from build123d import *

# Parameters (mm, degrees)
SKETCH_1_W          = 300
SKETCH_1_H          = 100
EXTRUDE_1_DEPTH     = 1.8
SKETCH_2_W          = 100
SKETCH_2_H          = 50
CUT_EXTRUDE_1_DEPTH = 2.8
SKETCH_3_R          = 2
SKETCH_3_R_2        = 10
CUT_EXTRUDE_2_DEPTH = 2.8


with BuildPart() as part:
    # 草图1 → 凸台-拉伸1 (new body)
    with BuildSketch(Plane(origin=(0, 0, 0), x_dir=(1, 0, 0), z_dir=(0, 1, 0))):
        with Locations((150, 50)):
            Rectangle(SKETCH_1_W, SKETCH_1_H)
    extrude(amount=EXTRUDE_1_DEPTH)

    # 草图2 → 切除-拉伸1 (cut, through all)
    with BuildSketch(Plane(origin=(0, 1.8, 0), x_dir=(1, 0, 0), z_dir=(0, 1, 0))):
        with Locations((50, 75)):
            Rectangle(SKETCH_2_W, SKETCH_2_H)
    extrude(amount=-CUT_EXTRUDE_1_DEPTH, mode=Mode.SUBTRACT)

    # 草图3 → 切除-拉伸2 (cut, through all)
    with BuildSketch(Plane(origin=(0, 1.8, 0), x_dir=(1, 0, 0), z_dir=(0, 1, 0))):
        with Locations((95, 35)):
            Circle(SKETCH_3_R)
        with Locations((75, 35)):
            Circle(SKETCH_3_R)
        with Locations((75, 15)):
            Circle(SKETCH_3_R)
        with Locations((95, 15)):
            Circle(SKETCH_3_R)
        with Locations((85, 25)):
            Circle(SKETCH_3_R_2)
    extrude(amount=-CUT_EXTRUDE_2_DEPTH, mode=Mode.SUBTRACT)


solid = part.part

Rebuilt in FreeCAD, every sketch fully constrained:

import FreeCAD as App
import Part
import Sketcher

V = App.Vector

doc = App.newDocument("Part")
params = doc.addObject("Spreadsheet::Sheet", "Params")
for row, (alias, value) in enumerate([
    ("sketch1_width", "300 mm"),
    ("sketch1_height", "100 mm"),
    ("pad1_length", "1.8 mm"),
    ("sketch2_width", "100 mm"),
    ("sketch2_height", "50 mm"),
    ("sketch3_diameter", "4 mm"),
    ("sketch3_diameter2", "20 mm"),
], start=1):
    params.set(f"A{row}", alias)
    params.set(f"B{row}", "=" + value)
    params.setAlias(f"B{row}", alias)

body = doc.addObject("PartDesign::Body", "Body")

# Sketch on XZ plane
sketch1 = doc.addObject("Sketcher::SketchObject", "Sketch")
body.addObject(sketch1)
sketch1.AttachmentSupport = (doc.XZ_Plane, [""])
sketch1.MapMode = "FlatFace"
sketch1.addGeometry([
    Part.LineSegment(V(0, -100, 0), V(0, 0, 0)),
    Part.LineSegment(V(0, 0, 0), V(300, 0, 0)),
    Part.LineSegment(V(300, 0, 0), V(300, -100, 0)),
    Part.LineSegment(V(300, -100, 0), V(0, -100, 0)),
], False)
sketch1.addConstraint([
    Sketcher.Constraint("Coincident", 0, 2, 1, 1),
    Sketcher.Constraint("Coincident", 1, 2, 2, 1),
    Sketcher.Constraint("Coincident", 2, 2, 3, 1),
    Sketcher.Constraint("Coincident", 3, 2, 0, 1),
    Sketcher.Constraint("Vertical", 0),
    Sketcher.Constraint("Horizontal", 1),
    Sketcher.Constraint("Vertical", 2),
    Sketcher.Constraint("Horizontal", 3),
    Sketcher.Constraint("Coincident", 0, 2, -1, 1),
    Sketcher.Constraint("DistanceX", 1, 1, 1, 2, 300.0),
    Sketcher.Constraint("DistanceY", 0, 1, 0, 2, 100.0),
])
sketch1.setExpression("Constraints[9]", "Params.sketch1_width")
sketch1.setExpression("Constraints[10]", "Params.sketch1_height")
pad1 = doc.addObject("PartDesign::Pad", "Pad")
body.addObject(pad1)
pad1.Profile = sketch1
pad1.setExpression("Length", "Params.pad1_length")
pad1.Reversed = True

# Sketch on XZ plane
sketch2 = doc.addObject("Sketcher::SketchObject", "Sketch001")
body.addObject(sketch2)
sketch2.AttachmentSupport = (doc.XZ_Plane, [""])
sketch2.MapMode = "FlatFace"
sketch2.AttachmentOffset = App.Placement(V(0, 0, -1.8), App.Rotation())
sketch2.addGeometry([
    Part.LineSegment(V(0, -100, 0), V(0, -50, 0)),
    Part.LineSegment(V(0, -50, 0), V(100, -50, 0)),
    Part.LineSegment(V(100, -50, 0), V(100, -100, 0)),
    Part.LineSegment(V(100, -100, 0), V(0, -100, 0)),
], False)
sketch2.addConstraint([
    Sketcher.Constraint("Coincident", 0, 2, 1, 1),
    Sketcher.Constraint("Coincident", 1, 2, 2, 1),
    Sketcher.Constraint("Coincident", 2, 2, 3, 1),
    Sketcher.Constraint("Coincident", 3, 2, 0, 1),
    Sketcher.Constraint("Vertical", 0),
    Sketcher.Constraint("Horizontal", 1),
    Sketcher.Constraint("Vertical", 2),
    Sketcher.Constraint("Horizontal", 3),
    Sketcher.Constraint("PointOnObject", 0, 2, -2),
    Sketcher.Constraint("DistanceX", 1, 1, 1, 2, 100.0),
    Sketcher.Constraint("DistanceY", 0, 1, 0, 2, 50.0),
    Sketcher.Constraint("DistanceY", 0, 2, -1, 1, 50.0),
])
sketch2.setExpression("Constraints[9]", "Params.sketch2_width")
sketch2.setExpression("Constraints[10]", "Params.sketch2_height")
pocket1 = doc.addObject("PartDesign::Pocket", "Pocket")
body.addObject(pocket1)
pocket1.Profile = sketch2
pocket1.Type = "ThroughAll"
pocket1.Reversed = True

# Sketch on XZ plane
sketch3 = doc.addObject("Sketcher::SketchObject", "Sketch002")
body.addObject(sketch3)
sketch3.AttachmentSupport = (doc.XZ_Plane, [""])
sketch3.MapMode = "FlatFace"
sketch3.AttachmentOffset = App.Placement(V(0, 0, -1.8), App.Rotation())
sketch3.addGeometry([
    Part.Circle(V(95, -35, 0), V(0, 0, 1), 2),  # 0
    Part.Circle(V(75, -35, 0), V(0, 0, 1), 2),  # 1
    Part.Circle(V(75, -15, 0), V(0, 0, 1), 2),  # 2
    Part.Circle(V(95, -15, 0), V(0, 0, 1), 2),  # 3
    Part.Circle(V(85, -25, 0), V(0, 0, 1), 10),  # 4
], False)
sketch3.addConstraint([
    Sketcher.Constraint("Equal", 0, 1),
    Sketcher.Constraint("Equal", 1, 2),
    Sketcher.Constraint("Equal", 2, 3),
    Sketcher.Constraint("Horizontal", 0, 3, 1, 3),
    Sketcher.Constraint("Horizontal", 2, 3, 3, 3),
    Sketcher.Constraint("Vertical", 1, 3, 2, 3),
    Sketcher.Constraint("Vertical", 0, 3, 3, 3),
    Sketcher.Constraint("Diameter", 0, 4.0),
    Sketcher.Constraint("Diameter", 4, 20.0),
    Sketcher.Constraint("DistanceX", -1, 1, 0, 3, 95.0),
    Sketcher.Constraint("DistanceY", 0, 3, -1, 1, 35.0),
    Sketcher.Constraint("DistanceX", -1, 1, 1, 3, 75.0),
    Sketcher.Constraint("DistanceY", 2, 3, -1, 1, 15.0),
    Sketcher.Constraint("DistanceX", -1, 1, 4, 3, 85.0),
    Sketcher.Constraint("DistanceY", 4, 3, -1, 1, 25.0),
])
sketch3.setExpression("Constraints[7]", "Params.sketch3_diameter")
sketch3.setExpression("Constraints[8]", "Params.sketch3_diameter2")
pocket2 = doc.addObject("PartDesign::Pocket", "Pocket001")
body.addObject(pocket2)
pocket2.Profile = sketch3
pocket2.Type = "ThroughAll"
pocket2.Reversed = True

doc.recompute()
